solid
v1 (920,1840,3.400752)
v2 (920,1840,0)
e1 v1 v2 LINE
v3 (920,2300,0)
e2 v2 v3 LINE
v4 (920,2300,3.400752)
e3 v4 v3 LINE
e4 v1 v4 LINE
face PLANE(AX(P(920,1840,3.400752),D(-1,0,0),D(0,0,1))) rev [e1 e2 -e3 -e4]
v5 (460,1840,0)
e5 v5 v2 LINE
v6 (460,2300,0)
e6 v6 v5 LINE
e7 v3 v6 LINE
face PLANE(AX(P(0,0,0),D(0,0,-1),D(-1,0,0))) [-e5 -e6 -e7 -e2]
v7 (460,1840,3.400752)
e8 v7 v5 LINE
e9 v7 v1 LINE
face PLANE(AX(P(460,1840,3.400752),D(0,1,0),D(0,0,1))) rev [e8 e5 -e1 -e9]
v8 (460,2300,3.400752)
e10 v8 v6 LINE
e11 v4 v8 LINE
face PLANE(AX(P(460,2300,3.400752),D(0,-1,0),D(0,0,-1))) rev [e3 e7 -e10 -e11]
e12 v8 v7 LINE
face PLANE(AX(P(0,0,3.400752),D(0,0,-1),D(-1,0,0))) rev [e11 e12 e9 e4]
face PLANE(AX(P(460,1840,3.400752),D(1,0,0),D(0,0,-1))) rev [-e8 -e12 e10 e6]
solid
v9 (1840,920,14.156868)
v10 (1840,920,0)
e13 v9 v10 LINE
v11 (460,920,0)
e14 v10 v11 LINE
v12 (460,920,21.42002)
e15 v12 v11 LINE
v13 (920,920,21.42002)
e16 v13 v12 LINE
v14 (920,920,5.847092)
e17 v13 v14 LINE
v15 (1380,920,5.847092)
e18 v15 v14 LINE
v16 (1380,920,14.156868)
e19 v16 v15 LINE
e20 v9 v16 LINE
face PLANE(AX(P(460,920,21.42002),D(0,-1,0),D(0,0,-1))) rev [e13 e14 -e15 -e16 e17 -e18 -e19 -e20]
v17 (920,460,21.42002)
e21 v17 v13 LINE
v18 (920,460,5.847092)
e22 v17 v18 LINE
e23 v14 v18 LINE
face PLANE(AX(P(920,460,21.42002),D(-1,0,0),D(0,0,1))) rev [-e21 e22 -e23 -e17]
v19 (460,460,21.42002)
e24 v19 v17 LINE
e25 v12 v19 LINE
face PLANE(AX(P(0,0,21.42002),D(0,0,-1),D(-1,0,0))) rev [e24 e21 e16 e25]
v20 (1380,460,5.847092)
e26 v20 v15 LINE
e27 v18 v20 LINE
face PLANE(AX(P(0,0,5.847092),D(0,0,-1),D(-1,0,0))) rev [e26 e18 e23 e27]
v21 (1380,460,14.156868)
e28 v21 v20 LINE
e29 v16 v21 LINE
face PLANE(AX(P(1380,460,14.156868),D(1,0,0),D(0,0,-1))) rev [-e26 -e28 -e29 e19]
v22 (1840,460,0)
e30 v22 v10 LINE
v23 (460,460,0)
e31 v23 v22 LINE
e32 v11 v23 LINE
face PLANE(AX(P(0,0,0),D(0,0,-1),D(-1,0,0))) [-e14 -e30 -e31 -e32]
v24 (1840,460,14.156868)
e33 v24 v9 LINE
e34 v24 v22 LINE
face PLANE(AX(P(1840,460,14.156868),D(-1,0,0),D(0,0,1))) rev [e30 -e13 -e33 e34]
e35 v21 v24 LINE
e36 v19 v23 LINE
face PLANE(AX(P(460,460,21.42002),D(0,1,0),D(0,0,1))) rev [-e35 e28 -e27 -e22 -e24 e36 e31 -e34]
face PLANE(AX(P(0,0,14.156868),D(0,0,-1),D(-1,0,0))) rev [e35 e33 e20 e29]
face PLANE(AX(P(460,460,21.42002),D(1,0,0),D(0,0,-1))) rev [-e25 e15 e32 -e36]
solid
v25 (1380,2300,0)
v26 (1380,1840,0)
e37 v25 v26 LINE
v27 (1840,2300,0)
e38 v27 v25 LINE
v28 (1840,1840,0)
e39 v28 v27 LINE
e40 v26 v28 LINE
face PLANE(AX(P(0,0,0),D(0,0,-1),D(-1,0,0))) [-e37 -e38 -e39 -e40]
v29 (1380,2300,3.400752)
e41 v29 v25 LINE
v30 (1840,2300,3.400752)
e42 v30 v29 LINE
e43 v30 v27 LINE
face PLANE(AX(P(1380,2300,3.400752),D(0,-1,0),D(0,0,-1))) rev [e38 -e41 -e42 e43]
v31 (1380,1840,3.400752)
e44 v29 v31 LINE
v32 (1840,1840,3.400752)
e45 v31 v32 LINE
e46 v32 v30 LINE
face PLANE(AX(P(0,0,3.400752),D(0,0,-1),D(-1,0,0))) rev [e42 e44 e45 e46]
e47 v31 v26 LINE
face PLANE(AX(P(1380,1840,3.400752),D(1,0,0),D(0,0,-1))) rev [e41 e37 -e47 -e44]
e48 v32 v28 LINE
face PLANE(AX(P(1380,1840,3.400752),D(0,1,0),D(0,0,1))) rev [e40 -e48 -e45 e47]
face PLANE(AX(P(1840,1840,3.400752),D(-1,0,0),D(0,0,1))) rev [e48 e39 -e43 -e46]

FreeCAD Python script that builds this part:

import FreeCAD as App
import Part
import Sketcher


def add_polygon(sketch, points):
    """Adds a closed chain of lines whose ends are joined by coincident constraints."""
    first, n = sketch.GeometryCount, len(points)
    for a, b in zip(points, points[1:] + points[:1]):
        sketch.addGeometry(Part.LineSegment(App.Vector(*a, 0), App.Vector(*b, 0)), False)
    for i in range(n):
        sketch.addConstraint(Sketcher.Constraint("Coincident", first + i, 2, first + (i + 1) % n, 1))

doc = App.newDocument("Part")
body = doc.addObject("PartDesign::Body", "Body")

# Sketch on XY plane
sketch1 = body.newObject("Sketcher::SketchObject", "Sketch")
sketch1.AttachmentSupport = (doc.getObject("XY_Plane"), [""])
sketch1.MapMode = "FlatFace"
add_polygon(sketch1, [(460, 920), (460, 460), (920, 460), (920, 920)])  # lines 0-3
sketch1.addConstraint([
    Sketcher.Constraint("Vertical", 0),
    Sketcher.Constraint("Horizontal", 1),
    Sketcher.Constraint("Vertical", 2),
    Sketcher.Constraint("Horizontal", 3),
    Sketcher.Constraint("Equal", 3, 0),
    Sketcher.Constraint("DistanceX", 1, 1, 1, 2, 460.0),
    Sketcher.Constraint("DistanceX", -1, 1, 0, 2, 460.0),
    Sketcher.Constraint("DistanceY", -1, 1, 0, 2, 460.0),
])
pad1 = body.newObject("PartDesign::Pad", "Pad")
pad1.Profile = sketch1
pad1.Length = 21.42002

# Sketch on XY plane
sketch2 = body.newObject("Sketcher::SketchObject", "Sketch001")
sketch2.AttachmentSupport = (doc.getObject("XY_Plane"), [""])
sketch2.MapMode = "FlatFace"
add_polygon(sketch2, [(920, 920), (920, 460), (1380, 460), (1380, 920)])  # lines 0-3
sketch2.addConstraint([
    Sketcher.Constraint("Vertical", 0),
    Sketcher.Constraint("Horizontal", 1),
    Sketcher.Constraint("Vertical", 2),
    Sketcher.Constraint("Horizontal", 3),
    Sketcher.Constraint("Equal", 3, 0),
    Sketcher.Constraint("DistanceX", 1, 1, 1, 2, 460.0),
    Sketcher.Constraint("DistanceX", -1, 1, 0, 2, 920.0),
    Sketcher.Constraint("DistanceY", -1, 1, 0, 2, 460.0),
])
pad2 = body.newObject("PartDesign::Pad", "Pad001")
pad2.Profile = sketch2
pad2.Length = 5.847092

# Sketch on XY plane
sketch3 = body.newObject("Sketcher::SketchObject", "Sketch002")
sketch3.AttachmentSupport = (doc.getObject("XY_Plane"), [""])
sketch3.MapMode = "FlatFace"
add_polygon(sketch3, [(1380, 920), (1380, 460), (1840, 460), (1840, 920)])  # lines 0-3
sketch3.addConstraint([
    Sketcher.Constraint("Vertical", 0),
    Sketcher.Constraint("Horizontal", 1),
    Sketcher.Constraint("Vertical", 2),
    Sketcher.Constraint("Horizontal", 3),
    Sketcher.Constraint("Equal", 3, 0),
    Sketcher.Constraint("DistanceX", 1, 1, 1, 2, 460.0),
    Sketcher.Constraint("DistanceX", -1, 1, 0, 2, 1380.0),
    Sketcher.Constraint("DistanceY", -1, 1, 0, 2, 460.0),
])
pad3 = body.newObject("PartDesign::Pad", "Pad002")
pad3.Profile = sketch3
pad3.Length = 14.156868
body2 = doc.addObject("PartDesign::Body", "Body001")

# Sketch on XY plane
sketch4 = body2.newObject("Sketcher::SketchObject", "Sketch003")
sketch4.AttachmentSupport = (doc.getObject("XY_Plane001"), [""])
sketch4.MapMode = "FlatFace"
add_polygon(sketch4, [(460, 2300), (460, 1840), (920, 1840), (920, 2300)])  # lines 0-3
sketch4.addConstraint([
    Sketcher.Constraint("Vertical", 0),
    Sketcher.Constraint("Horizontal", 1),
    Sketcher.Constraint("Vertical", 2),
    Sketcher.Constraint("Horizontal", 3),
    Sketcher.Constraint("Equal", 3, 0),
    Sketcher.Constraint("DistanceX", 1, 1, 1, 2, 460.0),
    Sketcher.Constraint("DistanceX", -1, 1, 0, 2, 460.0),
    Sketcher.Constraint("DistanceY", -1, 1, 0, 2, 1840.0),
])
pad4 = body2.newObject("PartDesign::Pad", "Pad003")
pad4.Profile = sketch4
pad4.Length = 3.400752
body3 = doc.addObject("PartDesign::Body", "Body002")

# Sketch on XY plane
sketch5 = body3.newObject("Sketcher::SketchObject", "Sketch004")
sketch5.AttachmentSupport = (doc.getObject("XY_Plane002"), [""])
sketch5.MapMode = "FlatFace"
add_polygon(sketch5, [(1380, 2300), (1380, 1840), (1840, 1840), (1840, 2300)])  # lines 0-3
sketch5.addConstraint([
    Sketcher.Constraint("Vertical", 0),
    Sketcher.Constraint("Horizontal", 1),
    Sketcher.Constraint("Vertical", 2),
    Sketcher.Constraint("Horizontal", 3),
    Sketcher.Constraint("Equal", 3, 0),
    Sketcher.Constraint("DistanceX", 1, 1, 1, 2, 460.0),
    Sketcher.Constraint("DistanceX", -1, 1, 0, 2, 1380.0),
    Sketcher.Constraint("DistanceY", -1, 1, 0, 2, 1840.0),
])
pad5 = body3.newObject("PartDesign::Pad", "Pad004")
pad5.Profile = sketch5
pad5.Length = 3.400752

doc.recompute()
